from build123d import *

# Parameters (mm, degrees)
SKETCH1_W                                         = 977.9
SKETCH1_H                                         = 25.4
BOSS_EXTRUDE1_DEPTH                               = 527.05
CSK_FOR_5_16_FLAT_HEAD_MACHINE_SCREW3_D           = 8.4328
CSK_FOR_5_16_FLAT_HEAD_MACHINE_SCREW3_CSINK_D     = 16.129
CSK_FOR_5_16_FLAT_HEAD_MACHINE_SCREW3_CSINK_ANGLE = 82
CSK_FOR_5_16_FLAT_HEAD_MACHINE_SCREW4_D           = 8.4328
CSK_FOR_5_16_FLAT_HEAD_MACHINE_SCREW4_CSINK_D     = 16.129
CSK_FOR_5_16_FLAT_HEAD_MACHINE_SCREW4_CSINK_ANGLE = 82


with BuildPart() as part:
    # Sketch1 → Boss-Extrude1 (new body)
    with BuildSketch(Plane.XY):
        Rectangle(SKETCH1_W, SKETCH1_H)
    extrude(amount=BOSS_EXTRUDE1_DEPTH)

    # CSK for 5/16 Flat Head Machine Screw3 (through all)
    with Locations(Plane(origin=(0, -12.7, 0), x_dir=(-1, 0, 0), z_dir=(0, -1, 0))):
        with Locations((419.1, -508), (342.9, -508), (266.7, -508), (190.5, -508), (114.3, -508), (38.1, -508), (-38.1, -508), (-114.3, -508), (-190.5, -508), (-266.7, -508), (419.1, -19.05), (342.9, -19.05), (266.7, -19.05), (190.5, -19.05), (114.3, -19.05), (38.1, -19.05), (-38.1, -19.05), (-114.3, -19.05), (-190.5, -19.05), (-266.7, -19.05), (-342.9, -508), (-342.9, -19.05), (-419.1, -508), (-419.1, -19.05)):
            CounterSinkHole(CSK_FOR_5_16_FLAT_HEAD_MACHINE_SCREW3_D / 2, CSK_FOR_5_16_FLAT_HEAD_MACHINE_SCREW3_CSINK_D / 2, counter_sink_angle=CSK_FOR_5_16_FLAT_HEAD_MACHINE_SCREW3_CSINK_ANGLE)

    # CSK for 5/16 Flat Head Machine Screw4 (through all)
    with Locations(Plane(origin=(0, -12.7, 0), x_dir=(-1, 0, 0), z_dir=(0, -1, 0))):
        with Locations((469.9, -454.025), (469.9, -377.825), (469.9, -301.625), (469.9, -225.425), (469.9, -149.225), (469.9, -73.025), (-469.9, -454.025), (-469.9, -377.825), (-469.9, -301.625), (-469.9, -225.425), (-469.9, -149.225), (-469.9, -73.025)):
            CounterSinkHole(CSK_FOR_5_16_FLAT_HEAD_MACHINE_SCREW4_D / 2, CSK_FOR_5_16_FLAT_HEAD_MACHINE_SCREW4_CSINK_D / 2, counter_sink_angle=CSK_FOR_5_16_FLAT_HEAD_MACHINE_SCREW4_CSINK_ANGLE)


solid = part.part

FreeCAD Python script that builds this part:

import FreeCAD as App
import Part
import Sketcher
from FreeCAD import Vector
Q = App.Units.Quantity


def add_polygon(sketch, points):
    """Adds a closed chain of lines whose ends are joined by coincident constraints."""
    first, n = sketch.GeometryCount, len(points)
    for a, b in zip(points, points[1:] + points[:1]):
        sketch.addGeometry(Part.LineSegment(App.Vector(*a, 0), App.Vector(*b, 0)), False)
    for i in range(n):
        sketch.addConstraint(Sketcher.Constraint("Coincident", first + i, 2, first + (i + 1) % n, 1))

doc = App.newDocument("Part")
body = doc.addObject("PartDesign::Body", "Body")

sketch1 = body.newObject("Sketcher::SketchObject", "Sketch")
sketch1.AttachmentSupport = (doc.getObject("XY_Plane"), [""])
sketch1.MapMode = "FlatFace"
add_polygon(sketch1, [(-489, 13), (-489, -13), (489, -13), (489, 13)])
sketch1.addConstraint(Sketcher.Constraint("Vertical", 0))
sketch1.addConstraint(Sketcher.Constraint("Horizontal", 1))
sketch1.addConstraint(Sketcher.Constraint("Vertical", 2))
sketch1.addConstraint(Sketcher.Constraint("Horizontal", 3))
sketch1.addConstraint(Sketcher.Constraint("Symmetric", 0, 2, 2, 2, -1, 1))
sketch1.addConstraint(Sketcher.Constraint("DistanceY", 0, 2, 0, 1, Q("1 in")))
sketch1.addConstraint(Sketcher.Constraint("DistanceX", 1, 1, 1, 2, Q("38.5 in")))
pad1 = body.newObject("PartDesign::Pad", "Pad")
pad1.Profile = sketch1
pad1.Length = Q("20.75 in")

sketch2 = body.newObject("Sketcher::SketchObject", "Sketch001")
sketch2.AttachmentSupport = (doc.getObject("XZ_Plane"), [""])
sketch2.MapMode = "FlatFace"
sketch2.AttachmentOffset = App.Placement(Vector(0, 0, 0.5 * 25.4), App.Rotation())
sketch2.addGeometry(Part.Circle(Vector(-419.1, 508, 0), Vector(0, 0, 1), 4.2), False)
sketch2.addGeometry(Part.Circle(Vector(-342.9, 508, 0), Vector(0, 0, 1), 4.2), False)
sketch2.addGeometry(Part.Circle(Vector(-266.7, 508, 0), Vector(0, 0, 1), 4.2), False)
sketch2.addGeometry(Part.Circle(Vector(-190.5, 508, 0), Vector(0, 0, 1), 4.2), False)
sketch2.addGeometry(Part.Circle(Vector(-114.3, 508, 0), Vector(0, 0, 1), 4.2), False)
sketch2.addGeometry(Part.Circle(Vector(-38.1, 508, 0), Vector(0, 0, 1), 4.2), False)
sketch2.addGeometry(Part.Circle(Vector(38.1, 508, 0), Vector(0, 0, 1), 4.2), False)
sketch2.addGeometry(Part.Circle(Vector(114.3, 508, 0), Vector(0, 0, 1), 4.2), False)
sketch2.addGeometry(Part.Circle(Vector(190.5, 508, 0), Vector(0, 0, 1), 4.2), False)
sketch2.addGeometry(Part.Circle(Vector(266.7, 508, 0), Vector(0, 0, 1), 4.2), False)
sketch2.addGeometry(Part.Circle(Vector(-419.1, 19.1, 0), Vector(0, 0, 1), 4.2), False)
sketch2.addGeometry(Part.Circle(Vector(-342.9, 19.1, 0), Vector(0, 0, 1), 4.2), False)
sketch2.addGeometry(Part.Circle(Vector(-266.7, 19.1, 0), Vector(0, 0, 1), 4.2), False)
sketch2.addGeometry(Part.Circle(Vector(-190.5, 19.1, 0), Vector(0, 0, 1), 4.2), False)
sketch2.addGeometry(Part.Circle(Vector(-114.3, 19.1, 0), Vector(0, 0, 1), 4.2), False)
sketch2.addGeometry(Part.Circle(Vector(-38.1, 19.1, 0), Vector(0, 0, 1), 4.2), False)
sketch2.addGeometry(Part.Circle(Vector(38.1, 19.1, 0), Vector(0, 0, 1), 4.2), False)
sketch2.addGeometry(Part.Circle(Vector(114.3, 19.1, 0), Vector(0, 0, 1), 4.2), False)
sketch2.addGeometry(Part.Circle(Vector(190.5, 19.1, 0), Vector(0, 0, 1), 4.2), False)
sketch2.addGeometry(Part.Circle(Vector(266.7, 19.1, 0), Vector(0, 0, 1), 4.2), False)
sketch2.addGeometry(Part.Circle(Vector(342.9, 508, 0), Vector(0, 0, 1), 4.2), False)
sketch2.addGeometry(Part.Circle(Vector(342.9, 19.1, 0), Vector(0, 0, 1), 4.2), False)
sketch2.addGeometry(Part.Circle(Vector(419.1, 508, 0), Vector(0, 0, 1), 4.2), False)
sketch2.addGeometry(Part.Circle(Vector(419.1, 19.1, 0), Vector(0, 0, 1), 4.2), False)
sketch2.addConstraint(Sketcher.Constraint("Equal", 0, 1))
sketch2.addConstraint(Sketcher.Constraint("Equal", 1, 2))
sketch2.addConstraint(Sketcher.Constraint("Equal", 2, 3))
sketch2.addConstraint(Sketcher.Constraint("Equal", 3, 4))
sketch2.addConstraint(Sketcher.Constraint("Equal", 4, 5))
sketch2.addConstraint(Sketcher.Constraint("Equal", 5, 6))
sketch2.addConstraint(Sketcher.Constraint("Equal", 6, 7))
sketch2.addConstraint(Sketcher.Constraint("Equal", 7, 8))
sketch2.addConstraint(Sketcher.Constraint("Equal", 8, 9))
sketch2.addConstraint(Sketcher.Constraint("Equal", 9, 10))
sketch2.addConstraint(Sketcher.Constraint("Equal", 10, 11))
sketch2.addConstraint(Sketcher.Constraint("Equal", 11, 12))
sketch2.addConstraint(Sketcher.Constraint("Equal", 12, 13))
sketch2.addConstraint(Sketcher.Constraint("Equal", 13, 14))
sketch2.addConstraint(Sketcher.Constraint("Equal", 14, 15))
sketch2.addConstraint(Sketcher.Constraint("Equal", 15, 16))
sketch2.addConstraint(Sketcher.Constraint("Equal", 16, 17))
sketch2.addConstraint(Sketcher.Constraint("Equal", 17, 18))
sketch2.addConstraint(Sketcher.Constraint("Equal", 18, 19))
sketch2.addConstraint(Sketcher.Constraint("Equal", 19, 20))
sketch2.addConstraint(Sketcher.Constraint("Equal", 20, 21))
sketch2.addConstraint(Sketcher.Constraint("Equal", 21, 22))
sketch2.addConstraint(Sketcher.Constraint("Equal", 22, 23))
sketch2.addConstraint(Sketcher.Constraint("Symmetric", 5, 3, 6, 3, -2))
sketch2.addConstraint(Sketcher.Constraint("Symmetric", 4, 3, 7, 3, -2))
sketch2.addConstraint(Sketcher.Constraint("Symmetric", 3, 3, 8, 3, -2))
sketch2.addConstraint(Sketcher.Constraint("Symmetric", 2, 3, 9, 3, -2))
sketch2.addConstraint(Sketcher.Constraint("Symmetric", 15, 3, 16, 3, -2))
sketch2.addConstraint(Sketcher.Constraint("Symmetric", 14, 3, 17, 3, -2))
sketch2.addConstraint(Sketcher.Constraint("Symmetric", 13, 3, 18, 3, -2))
sketch2.addConstraint(Sketcher.Constraint("Symmetric", 12, 3, 19, 3, -2))
sketch2.addConstraint(Sketcher.Constraint("Symmetric", 1, 3, 20, 3, -2))
sketch2.addConstraint(Sketcher.Constraint("Symmetric", 11, 3, 21, 3, -2))
sketch2.addConstraint(Sketcher.Constraint("Symmetric", 0, 3, 22, 3, -2))
sketch2.addConstraint(Sketcher.Constraint("Symmetric", 10, 3, 23, 3, -2))
sketch2.addConstraint(Sketcher.Constraint("Horizontal", 0, 3, 1, 3))
sketch2.addConstraint(Sketcher.Constraint("Horizontal", 1, 3, 2, 3))
sketch2.addConstraint(Sketcher.Constraint("Horizontal", 2, 3, 3, 3))
sketch2.addConstraint(Sketcher.Constraint("Horizontal", 3, 3, 4, 3))
sketch2.addConstraint(Sketcher.Constraint("Horizontal", 4, 3, 5, 3))
sketch2.addConstraint(Sketcher.Constraint("Horizontal", 10, 3, 11, 3))
sketch2.addConstraint(Sketcher.Constraint("Horizontal", 11, 3, 12, 3))
sketch2.addConstraint(Sketcher.Constraint("Horizontal", 12, 3, 13, 3))
sketch2.addConstraint(Sketcher.Constraint("Horizontal", 13, 3, 14, 3))
sketch2.addConstraint(Sketcher.Constraint("Horizontal", 14, 3, 15, 3))
sketch2.addConstraint(Sketcher.Constraint("Vertical", 0, 3, 10, 3))
sketch2.addConstraint(Sketcher.Constraint("Vertical", 1, 3, 11, 3))
sketch2.addConstraint(Sketcher.Constraint("Vertical", 2, 3, 12, 3))
sketch2.addConstraint(Sketcher.Constraint("Vertical", 3, 3, 13, 3))
sketch2.addConstraint(Sketcher.Constraint("Vertical", 4, 3, 14, 3))
sketch2.addConstraint(Sketcher.Constraint("Vertical", 5, 3, 15, 3))
sketch2.addConstraint(Sketcher.Constraint("Diameter", 0, Q("0.332 in")))
sketch2.addConstraint(Sketcher.Constraint("DistanceY", -1, 1, 0, 3, Q("20 in")))
sketch2.addConstraint(Sketcher.Constraint("DistanceX", 0, 3, 1, 3, Q("3 in")))
sketch2.addConstraint(Sketcher.Constraint("DistanceX", 1, 3, 2, 3, Q("3 in")))
sketch2.addConstraint(Sketcher.Constraint("DistanceX", 2, 3, 3, 3, Q("3 in")))
sketch2.addConstraint(Sketcher.Constraint("DistanceX", 3, 3, 4, 3, Q("3 in")))
sketch2.addConstraint(Sketcher.Constraint("DistanceX", 4, 3, 5, 3, Q("3 in")))
sketch2.addConstraint(Sketcher.Constraint("DistanceX", 5, 3, 6, 3, Q("3 in")))
sketch2.addConstraint(Sketcher.Constraint("DistanceY", -1, 1, 10, 3, Q("0.75 in")))
doc.recompute()
hole = body.newObject("PartDesign::Hole", "Hole")
hole.Profile = sketch2
hole.ThreadType = "None"
hole.Diameter = Q("0.332 in")
hole.DepthType = "ThroughAll"
hole.HoleCutType = "Countersink"
hole.HoleCutDiameter = Q("0.635 in")
hole.HoleCutCountersinkAngle = 82

sketch3 = body.newObject("Sketcher::SketchObject", "Sketch002")
sketch3.AttachmentSupport = (doc.getObject("XZ_Plane"), [""])
sketch3.MapMode = "FlatFace"
sketch3.AttachmentOffset = App.Placement(Vector(0, 0, 0.5 * 25.4), App.Rotation())
sketch3.addGeometry(Part.Circle(Vector(-469.9, 454, 0), Vector(0, 0, 1), 4.2), False)
sketch3.addGeometry(Part.Circle(Vector(-469.9, 377.8, 0), Vector(0, 0, 1), 4.2), False)
sketch3.addGeometry(Part.Circle(Vector(-469.9, 301.6, 0), Vector(0, 0, 1), 4.2), False)
sketch3.addGeometry(Part.Circle(Vector(-469.9, 225.4, 0), Vector(0, 0, 1), 4.2), False)
sketch3.addGeometry(Part.Circle(Vector(-469.9, 149.2, 0), Vector(0, 0, 1), 4.2), False)
sketch3.addGeometry(Part.Circle(Vector(-469.9, 73, 0), Vector(0, 0, 1), 4.2), False)
sketch3.addGeometry(Part.Circle(Vector(469.9, 454, 0), Vector(0, 0, 1), 4.2), False)
sketch3.addGeometry(Part.Circle(Vector(469.9, 377.8, 0), Vector(0, 0, 1), 4.2), False)
sketch3.addGeometry(Part.Circle(Vector(469.9, 301.6, 0), Vector(0, 0, 1), 4.2), False)
sketch3.addGeometry(Part.Circle(Vector(469.9, 225.4, 0), Vector(0, 0, 1), 4.2), False)
sketch3.addGeometry(Part.Circle(Vector(469.9, 149.2, 0), Vector(0, 0, 1), 4.2), False)
sketch3.addGeometry(Part.Circle(Vector(469.9, 73, 0), Vector(0, 0, 1), 4.2), False)
sketch3.addConstraint(Sketcher.Constraint("Equal", 0, 1))
sketch3.addConstraint(Sketcher.Constraint("Equal", 1, 2))
sketch3.addConstraint(Sketcher.Constraint("Equal", 2, 3))
sketch3.addConstraint(Sketcher.Constraint("Equal", 3, 4))
sketch3.addConstraint(Sketcher.Constraint("Equal", 4, 5))
sketch3.addConstraint(Sketcher.Constraint("Equal", 5, 6))
sketch3.addConstraint(Sketcher.Constraint("Equal", 6, 7))
sketch3.addConstraint(Sketcher.Constraint("Equal", 7, 8))
sketch3.addConstraint(Sketcher.Constraint("Equal", 8, 9))
sketch3.addConstraint(Sketcher.Constraint("Equal", 9, 10))
sketch3.addConstraint(Sketcher.Constraint("Equal", 10, 11))
sketch3.addConstraint(Sketcher.Constraint("Symmetric", 0, 3, 6, 3, -2))
sketch3.addConstraint(Sketcher.Constraint("Symmetric", 1, 3, 7, 3, -2))
sketch3.addConstraint(Sketcher.Constraint("Symmetric", 2, 3, 8, 3, -2))
sketch3.addConstraint(Sketcher.Constraint("Symmetric", 3, 3, 9, 3, -2))
sketch3.addConstraint(Sketcher.Constraint("Symmetric", 4, 3, 10, 3, -2))
sketch3.addConstraint(Sketcher.Constraint("Symmetric", 5, 3, 11, 3, -2))
sketch3.addConstraint(Sketcher.Constraint("Vertical", 0, 3, 1, 3))
sketch3.addConstraint(Sketcher.Constraint("Vertical", 1, 3, 2, 3))
sketch3.addConstraint(Sketcher.Constraint("Vertical", 2, 3, 3, 3))
sketch3.addConstraint(Sketcher.Constraint("Vertical", 3, 3, 4, 3))
sketch3.addConstraint(Sketcher.Constraint("Vertical", 4, 3, 5, 3))
sketch3.addConstraint(Sketcher.Constraint("Diameter", 0, Q("0.332 in")))
sketch3.addConstraint(Sketcher.Constraint("DistanceY", 1, 3, 0, 3, Q("3 in")))
sketch3.addConstraint(Sketcher.Constraint("DistanceY", 2, 3, 1, 3, Q("3 in")))
sketch3.addConstraint(Sketcher.Constraint("DistanceY", 3, 3, 2, 3, Q("3 in")))
sketch3.addConstraint(Sketcher.Constraint("DistanceY", 4, 3, 3, 3, Q("3 in")))
sketch3.addConstraint(Sketcher.Constraint("DistanceY", 5, 3, 4, 3, Q("3 in")))
sketch3.addConstraint(Sketcher.Constraint("DistanceX", 0, 3, 6, 3, Q("37 in")))
sketch3.addConstraint(Sketcher.Constraint("DistanceY", -1, 1, 0, 3, Q("17.875 in")))
doc.recompute()
hole2 = body.newObject("PartDesign::Hole", "Hole001")
hole2.Profile = sketch3
hole2.ThreadType = "None"
hole2.Diameter = Q("0.332 in")
hole2.DepthType = "ThroughAll"
hole2.HoleCutType = "Countersink"
hole2.HoleCutDiameter = Q("0.635 in")
hole2.HoleCutCountersinkAngle = 82

doc.recompute()
